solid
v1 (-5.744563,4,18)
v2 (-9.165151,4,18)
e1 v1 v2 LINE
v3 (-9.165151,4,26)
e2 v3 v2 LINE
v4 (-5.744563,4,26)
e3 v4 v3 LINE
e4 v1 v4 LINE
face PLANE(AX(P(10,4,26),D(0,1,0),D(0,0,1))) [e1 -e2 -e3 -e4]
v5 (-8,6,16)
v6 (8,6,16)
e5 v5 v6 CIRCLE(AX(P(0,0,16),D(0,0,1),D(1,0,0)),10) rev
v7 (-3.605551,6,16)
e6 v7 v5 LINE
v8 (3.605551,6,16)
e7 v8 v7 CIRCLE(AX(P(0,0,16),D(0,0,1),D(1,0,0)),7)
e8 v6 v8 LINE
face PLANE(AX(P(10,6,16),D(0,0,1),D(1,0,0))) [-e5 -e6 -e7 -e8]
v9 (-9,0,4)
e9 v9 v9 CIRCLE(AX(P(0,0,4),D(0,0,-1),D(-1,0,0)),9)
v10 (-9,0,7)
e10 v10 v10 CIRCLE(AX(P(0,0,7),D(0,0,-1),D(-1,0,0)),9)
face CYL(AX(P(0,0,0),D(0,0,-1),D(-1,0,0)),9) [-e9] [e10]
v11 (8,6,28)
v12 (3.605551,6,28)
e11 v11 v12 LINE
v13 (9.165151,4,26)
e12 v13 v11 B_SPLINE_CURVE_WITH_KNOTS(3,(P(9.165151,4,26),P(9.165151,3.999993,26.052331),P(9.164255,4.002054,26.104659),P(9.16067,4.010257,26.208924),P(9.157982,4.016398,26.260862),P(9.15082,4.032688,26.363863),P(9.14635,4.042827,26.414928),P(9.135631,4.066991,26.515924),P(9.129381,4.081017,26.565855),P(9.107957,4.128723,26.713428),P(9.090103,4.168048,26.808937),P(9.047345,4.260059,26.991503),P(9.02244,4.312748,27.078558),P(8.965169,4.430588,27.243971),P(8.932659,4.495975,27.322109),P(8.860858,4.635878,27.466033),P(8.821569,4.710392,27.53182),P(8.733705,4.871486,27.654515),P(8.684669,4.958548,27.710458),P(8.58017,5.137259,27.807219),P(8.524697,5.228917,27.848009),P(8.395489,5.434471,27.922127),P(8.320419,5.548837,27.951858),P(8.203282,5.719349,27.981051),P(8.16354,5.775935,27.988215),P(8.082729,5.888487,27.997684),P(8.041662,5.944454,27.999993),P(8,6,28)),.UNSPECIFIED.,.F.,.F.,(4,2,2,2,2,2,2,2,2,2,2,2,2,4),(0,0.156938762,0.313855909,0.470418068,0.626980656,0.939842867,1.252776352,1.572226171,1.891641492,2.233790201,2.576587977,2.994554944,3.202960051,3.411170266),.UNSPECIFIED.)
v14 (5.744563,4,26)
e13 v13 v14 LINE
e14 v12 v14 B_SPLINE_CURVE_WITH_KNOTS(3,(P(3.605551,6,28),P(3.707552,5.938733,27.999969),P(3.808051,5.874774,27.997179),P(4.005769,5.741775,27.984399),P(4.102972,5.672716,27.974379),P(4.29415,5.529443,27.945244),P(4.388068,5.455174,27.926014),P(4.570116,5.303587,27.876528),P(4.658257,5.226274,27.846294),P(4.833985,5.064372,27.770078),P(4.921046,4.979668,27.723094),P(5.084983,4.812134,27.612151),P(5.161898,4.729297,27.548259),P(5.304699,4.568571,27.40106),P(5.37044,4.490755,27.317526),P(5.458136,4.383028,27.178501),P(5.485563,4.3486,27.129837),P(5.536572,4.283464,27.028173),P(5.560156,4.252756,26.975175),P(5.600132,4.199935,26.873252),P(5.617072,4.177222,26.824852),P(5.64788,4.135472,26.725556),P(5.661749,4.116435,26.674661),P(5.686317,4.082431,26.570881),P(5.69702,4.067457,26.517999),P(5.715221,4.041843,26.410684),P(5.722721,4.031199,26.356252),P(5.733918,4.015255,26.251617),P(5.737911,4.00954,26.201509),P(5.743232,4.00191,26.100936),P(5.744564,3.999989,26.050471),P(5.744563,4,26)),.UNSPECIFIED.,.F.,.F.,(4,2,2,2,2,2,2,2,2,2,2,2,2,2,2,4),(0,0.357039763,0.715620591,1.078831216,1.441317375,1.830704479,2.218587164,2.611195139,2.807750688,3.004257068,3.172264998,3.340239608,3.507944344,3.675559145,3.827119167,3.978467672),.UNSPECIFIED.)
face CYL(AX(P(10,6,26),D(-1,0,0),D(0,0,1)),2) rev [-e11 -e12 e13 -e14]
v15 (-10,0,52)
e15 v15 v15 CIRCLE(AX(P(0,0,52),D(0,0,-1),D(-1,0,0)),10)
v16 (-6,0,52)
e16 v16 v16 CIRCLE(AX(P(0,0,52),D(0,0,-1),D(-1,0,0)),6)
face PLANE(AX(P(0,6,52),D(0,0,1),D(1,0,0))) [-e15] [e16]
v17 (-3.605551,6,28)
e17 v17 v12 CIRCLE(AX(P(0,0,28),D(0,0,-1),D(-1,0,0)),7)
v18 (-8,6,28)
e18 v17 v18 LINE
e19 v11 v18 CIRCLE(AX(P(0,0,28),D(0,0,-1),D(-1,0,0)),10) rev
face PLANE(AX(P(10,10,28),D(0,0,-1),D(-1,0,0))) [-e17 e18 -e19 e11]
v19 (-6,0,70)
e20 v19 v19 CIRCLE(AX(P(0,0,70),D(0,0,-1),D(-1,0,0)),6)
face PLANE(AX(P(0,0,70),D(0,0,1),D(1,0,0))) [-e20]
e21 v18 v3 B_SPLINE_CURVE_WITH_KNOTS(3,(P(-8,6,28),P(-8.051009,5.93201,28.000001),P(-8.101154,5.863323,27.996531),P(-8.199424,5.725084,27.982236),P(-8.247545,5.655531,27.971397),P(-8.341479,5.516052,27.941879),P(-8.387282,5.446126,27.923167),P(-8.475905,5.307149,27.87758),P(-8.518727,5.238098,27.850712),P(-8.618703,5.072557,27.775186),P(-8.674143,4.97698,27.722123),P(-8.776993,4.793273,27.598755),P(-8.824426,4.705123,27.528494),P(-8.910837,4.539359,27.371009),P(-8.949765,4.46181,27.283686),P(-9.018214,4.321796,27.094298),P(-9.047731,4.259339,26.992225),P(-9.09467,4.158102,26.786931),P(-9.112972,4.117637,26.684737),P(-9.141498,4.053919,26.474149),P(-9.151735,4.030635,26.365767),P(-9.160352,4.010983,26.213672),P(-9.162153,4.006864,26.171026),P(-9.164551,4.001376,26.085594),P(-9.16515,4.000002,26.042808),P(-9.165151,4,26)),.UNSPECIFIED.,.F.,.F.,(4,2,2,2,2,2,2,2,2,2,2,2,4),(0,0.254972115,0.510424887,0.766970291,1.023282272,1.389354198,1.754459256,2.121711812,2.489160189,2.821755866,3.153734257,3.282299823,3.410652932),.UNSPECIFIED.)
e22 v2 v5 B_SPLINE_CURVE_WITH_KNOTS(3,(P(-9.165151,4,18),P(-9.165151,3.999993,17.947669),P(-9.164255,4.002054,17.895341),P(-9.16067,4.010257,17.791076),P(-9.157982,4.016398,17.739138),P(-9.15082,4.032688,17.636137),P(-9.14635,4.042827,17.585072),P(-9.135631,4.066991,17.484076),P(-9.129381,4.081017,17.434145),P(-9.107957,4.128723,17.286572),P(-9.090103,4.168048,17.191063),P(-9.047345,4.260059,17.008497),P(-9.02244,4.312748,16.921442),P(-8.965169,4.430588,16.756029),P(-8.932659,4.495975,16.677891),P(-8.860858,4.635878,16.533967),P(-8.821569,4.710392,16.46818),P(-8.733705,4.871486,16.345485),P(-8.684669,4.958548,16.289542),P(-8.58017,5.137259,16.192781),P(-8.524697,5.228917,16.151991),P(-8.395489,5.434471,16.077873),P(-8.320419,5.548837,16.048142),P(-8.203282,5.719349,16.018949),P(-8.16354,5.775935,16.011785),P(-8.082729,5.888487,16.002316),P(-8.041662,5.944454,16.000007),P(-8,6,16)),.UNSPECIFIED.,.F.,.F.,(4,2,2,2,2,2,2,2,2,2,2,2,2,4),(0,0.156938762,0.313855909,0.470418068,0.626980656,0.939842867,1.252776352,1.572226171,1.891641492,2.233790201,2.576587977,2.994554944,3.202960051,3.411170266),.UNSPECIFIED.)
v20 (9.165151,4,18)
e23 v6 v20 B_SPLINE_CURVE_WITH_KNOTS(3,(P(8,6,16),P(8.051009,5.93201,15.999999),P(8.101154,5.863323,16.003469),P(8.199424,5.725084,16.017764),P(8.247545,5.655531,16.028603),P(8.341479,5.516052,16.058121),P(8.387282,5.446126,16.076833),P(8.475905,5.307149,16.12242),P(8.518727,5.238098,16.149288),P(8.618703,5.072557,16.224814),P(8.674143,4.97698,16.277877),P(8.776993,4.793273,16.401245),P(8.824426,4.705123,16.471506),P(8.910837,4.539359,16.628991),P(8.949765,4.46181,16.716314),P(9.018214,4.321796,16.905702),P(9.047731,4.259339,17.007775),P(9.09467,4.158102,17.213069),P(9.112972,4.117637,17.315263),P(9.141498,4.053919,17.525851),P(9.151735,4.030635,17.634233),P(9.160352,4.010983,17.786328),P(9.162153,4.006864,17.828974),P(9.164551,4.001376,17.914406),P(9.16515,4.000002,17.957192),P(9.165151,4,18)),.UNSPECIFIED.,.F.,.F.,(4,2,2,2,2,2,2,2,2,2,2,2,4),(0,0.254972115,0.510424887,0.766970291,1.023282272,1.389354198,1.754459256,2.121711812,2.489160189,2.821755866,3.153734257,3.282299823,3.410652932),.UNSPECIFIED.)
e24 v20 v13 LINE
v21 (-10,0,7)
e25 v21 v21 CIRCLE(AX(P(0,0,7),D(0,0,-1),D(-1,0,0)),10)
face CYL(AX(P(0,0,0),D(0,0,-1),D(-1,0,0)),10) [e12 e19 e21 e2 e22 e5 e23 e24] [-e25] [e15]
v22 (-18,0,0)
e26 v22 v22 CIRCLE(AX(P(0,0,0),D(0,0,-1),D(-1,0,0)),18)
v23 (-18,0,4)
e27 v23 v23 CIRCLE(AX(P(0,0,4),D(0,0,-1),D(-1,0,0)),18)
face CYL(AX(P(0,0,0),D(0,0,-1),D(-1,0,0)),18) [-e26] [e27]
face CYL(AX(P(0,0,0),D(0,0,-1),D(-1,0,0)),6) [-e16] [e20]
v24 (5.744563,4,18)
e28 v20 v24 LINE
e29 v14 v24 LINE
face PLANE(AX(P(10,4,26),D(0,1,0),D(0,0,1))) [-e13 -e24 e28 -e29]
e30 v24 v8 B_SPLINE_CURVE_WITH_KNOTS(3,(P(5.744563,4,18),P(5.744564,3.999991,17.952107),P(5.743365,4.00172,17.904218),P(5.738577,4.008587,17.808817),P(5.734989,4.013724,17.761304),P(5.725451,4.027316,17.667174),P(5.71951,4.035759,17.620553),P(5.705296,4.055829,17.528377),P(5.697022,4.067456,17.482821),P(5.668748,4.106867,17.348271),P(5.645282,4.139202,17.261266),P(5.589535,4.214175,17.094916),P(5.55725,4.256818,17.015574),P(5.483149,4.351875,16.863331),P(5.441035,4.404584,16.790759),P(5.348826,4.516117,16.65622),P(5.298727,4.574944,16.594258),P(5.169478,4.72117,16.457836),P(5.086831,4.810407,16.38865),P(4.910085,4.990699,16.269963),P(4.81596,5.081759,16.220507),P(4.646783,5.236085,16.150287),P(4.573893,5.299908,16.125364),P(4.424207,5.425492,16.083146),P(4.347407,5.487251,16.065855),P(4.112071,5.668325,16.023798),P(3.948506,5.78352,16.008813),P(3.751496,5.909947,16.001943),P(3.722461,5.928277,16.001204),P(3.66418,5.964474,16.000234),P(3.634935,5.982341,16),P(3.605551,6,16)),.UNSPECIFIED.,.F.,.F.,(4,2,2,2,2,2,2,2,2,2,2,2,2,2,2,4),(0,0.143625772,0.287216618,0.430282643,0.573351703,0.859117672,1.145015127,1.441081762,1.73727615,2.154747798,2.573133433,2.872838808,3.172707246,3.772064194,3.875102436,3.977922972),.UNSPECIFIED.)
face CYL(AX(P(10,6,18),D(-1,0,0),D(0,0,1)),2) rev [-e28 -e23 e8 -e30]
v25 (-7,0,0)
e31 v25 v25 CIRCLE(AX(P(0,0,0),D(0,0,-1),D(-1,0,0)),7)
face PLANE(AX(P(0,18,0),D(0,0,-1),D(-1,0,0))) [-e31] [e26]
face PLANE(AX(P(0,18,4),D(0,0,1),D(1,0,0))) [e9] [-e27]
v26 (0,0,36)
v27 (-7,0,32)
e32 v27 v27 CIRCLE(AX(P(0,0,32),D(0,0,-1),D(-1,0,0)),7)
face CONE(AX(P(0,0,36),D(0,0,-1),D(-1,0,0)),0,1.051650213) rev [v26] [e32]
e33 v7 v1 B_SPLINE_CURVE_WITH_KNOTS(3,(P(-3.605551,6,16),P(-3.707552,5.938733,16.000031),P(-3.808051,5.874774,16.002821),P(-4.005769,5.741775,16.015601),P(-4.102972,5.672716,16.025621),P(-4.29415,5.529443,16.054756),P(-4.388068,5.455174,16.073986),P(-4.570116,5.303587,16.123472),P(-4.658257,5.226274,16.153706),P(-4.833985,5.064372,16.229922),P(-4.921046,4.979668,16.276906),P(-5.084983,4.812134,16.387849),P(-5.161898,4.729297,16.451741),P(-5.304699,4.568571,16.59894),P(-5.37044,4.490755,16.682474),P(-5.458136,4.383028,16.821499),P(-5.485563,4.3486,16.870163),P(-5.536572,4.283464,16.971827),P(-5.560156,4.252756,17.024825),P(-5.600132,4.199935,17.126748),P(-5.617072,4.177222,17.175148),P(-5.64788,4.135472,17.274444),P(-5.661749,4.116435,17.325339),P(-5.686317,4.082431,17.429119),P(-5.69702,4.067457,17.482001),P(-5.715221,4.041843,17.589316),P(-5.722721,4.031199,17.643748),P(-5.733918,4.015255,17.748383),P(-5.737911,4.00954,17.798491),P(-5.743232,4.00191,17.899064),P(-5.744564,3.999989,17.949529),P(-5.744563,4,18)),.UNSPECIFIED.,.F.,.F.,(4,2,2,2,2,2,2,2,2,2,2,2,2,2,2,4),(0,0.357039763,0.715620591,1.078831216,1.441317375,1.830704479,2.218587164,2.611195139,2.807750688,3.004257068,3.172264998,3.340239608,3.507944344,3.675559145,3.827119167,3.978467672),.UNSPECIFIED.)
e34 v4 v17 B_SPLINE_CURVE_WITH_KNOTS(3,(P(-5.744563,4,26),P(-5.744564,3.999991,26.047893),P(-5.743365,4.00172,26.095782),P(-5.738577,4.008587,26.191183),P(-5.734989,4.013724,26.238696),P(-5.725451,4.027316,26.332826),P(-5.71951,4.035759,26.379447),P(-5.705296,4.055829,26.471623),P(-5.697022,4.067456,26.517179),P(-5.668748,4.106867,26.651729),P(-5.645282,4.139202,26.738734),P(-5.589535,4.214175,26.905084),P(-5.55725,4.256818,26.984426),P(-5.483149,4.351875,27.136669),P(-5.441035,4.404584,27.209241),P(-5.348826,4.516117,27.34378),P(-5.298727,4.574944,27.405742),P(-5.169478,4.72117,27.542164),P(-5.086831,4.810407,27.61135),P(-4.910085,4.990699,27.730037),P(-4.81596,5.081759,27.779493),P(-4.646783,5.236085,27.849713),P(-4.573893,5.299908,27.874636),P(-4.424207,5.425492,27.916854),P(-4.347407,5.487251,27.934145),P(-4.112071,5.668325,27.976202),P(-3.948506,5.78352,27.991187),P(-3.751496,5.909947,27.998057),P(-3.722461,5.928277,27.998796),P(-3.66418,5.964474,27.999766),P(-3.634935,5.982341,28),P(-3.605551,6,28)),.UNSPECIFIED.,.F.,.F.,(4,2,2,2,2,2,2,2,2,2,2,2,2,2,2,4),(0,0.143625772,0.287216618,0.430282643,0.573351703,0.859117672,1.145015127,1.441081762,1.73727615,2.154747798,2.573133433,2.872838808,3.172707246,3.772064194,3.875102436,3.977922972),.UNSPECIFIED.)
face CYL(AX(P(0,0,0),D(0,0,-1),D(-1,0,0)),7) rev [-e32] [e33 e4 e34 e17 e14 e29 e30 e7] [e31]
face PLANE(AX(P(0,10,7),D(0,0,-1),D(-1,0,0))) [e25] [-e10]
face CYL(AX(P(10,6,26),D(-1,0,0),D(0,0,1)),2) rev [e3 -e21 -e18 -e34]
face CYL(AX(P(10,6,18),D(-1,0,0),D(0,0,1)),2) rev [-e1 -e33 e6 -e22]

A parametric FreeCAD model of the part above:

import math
import FreeCAD as App
import Part
import Sketcher

V = App.Vector
Q = App.Units.Quantity

doc = App.newDocument("Part")
params = doc.addObject("Spreadsheet::Sheet", "Params")
for row, (alias, value) in enumerate([
    ("sketch1_width", "11 mm"),
    ("sketch1_width2", "9 mm"),
    ("sketch1_width3", "1 mm"),
    ("sketch1_width4", "4 mm"),
    ("sketch1_width5", "6 mm"),
    ("revolution_angle", "360 deg"),
    ("sketch2_radius", "2 mm"),
    ("sketch2_width", "4 mm"),
    ("sketch2_height", "12 mm"),
], start=1):
    params.set(f"A{row}", alias)
    params.set(f"B{row}", "=" + value)
    params.setAlias(f"B{row}", alias)

body = doc.addObject("PartDesign::Body", "Body")

sketch1 = doc.addObject("Sketcher::SketchObject", "Sketch")
body.addObject(sketch1)
sketch1.AttachmentSupport = (doc.YZ_Plane, [""])
sketch1.MapMode = "FlatFace"
sketch1.addGeometry([
    Part.LineSegment(V(0, 70, 0), V(0, 36, 0)),
    Part.LineSegment(V(0, 36, 0), V(7, 32, 0)),
    Part.LineSegment(V(7, 32, 0), V(7, 0, 0)),
    Part.LineSegment(V(7, 0, 0), V(18, 0, 0)),
    Part.LineSegment(V(18, 0, 0), V(18, 4, 0)),
    Part.LineSegment(V(18, 4, 0), V(9, 4, 0)),
    Part.LineSegment(V(9, 4, 0), V(9, 7, 0)),
    Part.LineSegment(V(9, 7, 0), V(10, 7, 0)),
    Part.LineSegment(V(10, 7, 0), V(10, 52, 0)),
    Part.LineSegment(V(10, 52, 0), V(6, 52, 0)),
    Part.LineSegment(V(6, 52, 0), V(6, 70, 0)),
    Part.LineSegment(V(6, 70, 0), V(0, 70, 0)),
], False)
sketch1.addConstraint([
    Sketcher.Constraint("Coincident", 0, 2, 1, 1),
    Sketcher.Constraint("Coincident", 1, 2, 2, 1),
    Sketcher.Constraint("Coincident", 2, 2, 3, 1),
    Sketcher.Constraint("Coincident", 3, 2, 4, 1),
    Sketcher.Constraint("Coincident", 4, 2, 5, 1),
    Sketcher.Constraint("Coincident", 5, 2, 6, 1),
    Sketcher.Constraint("Coincident", 6, 2, 7, 1),
    Sketcher.Constraint("Coincident", 7, 2, 8, 1),
    Sketcher.Constraint("Coincident", 8, 2, 9, 1),
    Sketcher.Constraint("Coincident", 9, 2, 10, 1),
    Sketcher.Constraint("Coincident", 10, 2, 11, 1),
    Sketcher.Constraint("Coincident", 11, 2, 0, 1),
    Sketcher.Constraint("Vertical", 0),
    Sketcher.Constraint("Vertical", 2),
    Sketcher.Constraint("Horizontal", 3),
    Sketcher.Constraint("Vertical", 4),
    Sketcher.Constraint("Horizontal", 5),
    Sketcher.Constraint("Vertical", 6),
    Sketcher.Constraint("Horizontal", 7),
    Sketcher.Constraint("Vertical", 8),
    Sketcher.Constraint("Horizontal", 9),
    Sketcher.Constraint("Vertical", 10),
    Sketcher.Constraint("Horizontal", 11),
    Sketcher.Constraint("PointOnObject", 0, 2, -2),
    Sketcher.Constraint("PointOnObject", 2, 2, -1),
    Sketcher.Constraint("Equal", 9, 4),
    Sketcher.Constraint("DistanceX", 3, 1, 3, 2, Q("11 mm")),
    Sketcher.Constraint("DistanceX", 5, 2, 5, 1, Q("9 mm")),
    Sketcher.Constraint("DistanceX", 7, 1, 7, 2, Q("1 mm")),
    Sketcher.Constraint("DistanceX", 9, 2, 9, 1, Q("4 mm")),
    Sketcher.Constraint("DistanceX", 11, 2, 11, 1, Q("6 mm")),
    Sketcher.Constraint("DistanceY", 0, 2, 0, 1, Q("34 mm")),
    Sketcher.Constraint("DistanceY", 2, 2, 2, 1, Q("32 mm")),
    Sketcher.Constraint("DistanceY", 6, 1, 6, 2, Q("3 mm")),
    Sketcher.Constraint("DistanceY", 8, 1, 8, 2, Q("45 mm")),
    Sketcher.Constraint("DistanceY", 10, 1, 10, 2, Q("18 mm")),
])
sketch1.setExpression("Constraints[26]", "Params.sketch1_width")
sketch1.setExpression("Constraints[27]", "Params.sketch1_width2")
sketch1.setExpression("Constraints[28]", "Params.sketch1_width3")
sketch1.setExpression("Constraints[29]", "Params.sketch1_width4")
sketch1.setExpression("Constraints[30]", "Params.sketch1_width5")
revolution = doc.addObject("PartDesign::Revolution", "Revolution")
body.addObject(revolution)
revolution.Profile = sketch1
revolution.ReferenceAxis = (sketch1, ["V_Axis"])
revolution.setExpression("Angle", "Params.revolution_angle")

sketch2 = doc.addObject("Sketcher::SketchObject", "Sketch001")
body.addObject(sketch2)
sketch2.AttachmentSupport = (doc.YZ_Plane, [""])
sketch2.MapMode = "FlatFace"
sketch2.addGeometry([
    Part.LineSegment(V(10, 16, 0), V(10, 28, 0)),
    Part.LineSegment(V(10, 28, 0), V(6, 28, 0)),
    Part.ArcOfCircle(Part.Circle(V(6, 26, 0), V(0, 0, 1), 2), math.radians(90), math.radians(180)),
    Part.LineSegment(V(4, 26, 0), V(4, 18, 0)),
    Part.ArcOfCircle(Part.Circle(V(6, 18, 0), V(0, 0, 1), 2), math.radians(-180), math.radians(-90)),
    Part.LineSegment(V(6, 16, 0), V(10, 16, 0)),
], False)
sketch2.addConstraint([
    Sketcher.Constraint("Coincident", 0, 2, 1, 1),
    Sketcher.Constraint("Tangent", 1, 2, 2, 1),
    Sketcher.Constraint("Tangent", 2, 2, 3, 1),
    Sketcher.Constraint("Tangent", 3, 2, 4, 1),
    Sketcher.Constraint("Tangent", 4, 2, 5, 1),
    Sketcher.Constraint("Coincident", 5, 2, 0, 1),
    Sketcher.Constraint("Vertical", 0),
    Sketcher.Constraint("Horizontal", 1),
    Sketcher.Constraint("Vertical", 3),
    Sketcher.Constraint("Horizontal", 5),
    Sketcher.Constraint("Equal", 2, 4),
    Sketcher.Constraint("Radius", 2, Q("2 mm")),
    Sketcher.Constraint("DistanceX", 1, 2, 1, 1, Q("4 mm")),
    Sketcher.Constraint("DistanceY", 0, 1, 0, 2, Q("12 mm")),
    Sketcher.Constraint("DistanceX", -1, 1, 2, 3, Q("6 mm")),
    Sketcher.Constraint("DistanceY", -1, 1, 2, 3, Q("26 mm")),
])
sketch2.setExpression("Constraints[11]", "Params.sketch2_radius")
sketch2.setExpression("Constraints[12]", "Params.sketch2_width")
sketch2.setExpression("Constraints[13]", "Params.sketch2_height")
pocket1 = doc.addObject("PartDesign::Pocket", "Pocket")
body.addObject(pocket1)
pocket1.Profile = sketch2
pocket1.Type = "ThroughAll"
pocket1.Midplane = True

doc.recompute()
